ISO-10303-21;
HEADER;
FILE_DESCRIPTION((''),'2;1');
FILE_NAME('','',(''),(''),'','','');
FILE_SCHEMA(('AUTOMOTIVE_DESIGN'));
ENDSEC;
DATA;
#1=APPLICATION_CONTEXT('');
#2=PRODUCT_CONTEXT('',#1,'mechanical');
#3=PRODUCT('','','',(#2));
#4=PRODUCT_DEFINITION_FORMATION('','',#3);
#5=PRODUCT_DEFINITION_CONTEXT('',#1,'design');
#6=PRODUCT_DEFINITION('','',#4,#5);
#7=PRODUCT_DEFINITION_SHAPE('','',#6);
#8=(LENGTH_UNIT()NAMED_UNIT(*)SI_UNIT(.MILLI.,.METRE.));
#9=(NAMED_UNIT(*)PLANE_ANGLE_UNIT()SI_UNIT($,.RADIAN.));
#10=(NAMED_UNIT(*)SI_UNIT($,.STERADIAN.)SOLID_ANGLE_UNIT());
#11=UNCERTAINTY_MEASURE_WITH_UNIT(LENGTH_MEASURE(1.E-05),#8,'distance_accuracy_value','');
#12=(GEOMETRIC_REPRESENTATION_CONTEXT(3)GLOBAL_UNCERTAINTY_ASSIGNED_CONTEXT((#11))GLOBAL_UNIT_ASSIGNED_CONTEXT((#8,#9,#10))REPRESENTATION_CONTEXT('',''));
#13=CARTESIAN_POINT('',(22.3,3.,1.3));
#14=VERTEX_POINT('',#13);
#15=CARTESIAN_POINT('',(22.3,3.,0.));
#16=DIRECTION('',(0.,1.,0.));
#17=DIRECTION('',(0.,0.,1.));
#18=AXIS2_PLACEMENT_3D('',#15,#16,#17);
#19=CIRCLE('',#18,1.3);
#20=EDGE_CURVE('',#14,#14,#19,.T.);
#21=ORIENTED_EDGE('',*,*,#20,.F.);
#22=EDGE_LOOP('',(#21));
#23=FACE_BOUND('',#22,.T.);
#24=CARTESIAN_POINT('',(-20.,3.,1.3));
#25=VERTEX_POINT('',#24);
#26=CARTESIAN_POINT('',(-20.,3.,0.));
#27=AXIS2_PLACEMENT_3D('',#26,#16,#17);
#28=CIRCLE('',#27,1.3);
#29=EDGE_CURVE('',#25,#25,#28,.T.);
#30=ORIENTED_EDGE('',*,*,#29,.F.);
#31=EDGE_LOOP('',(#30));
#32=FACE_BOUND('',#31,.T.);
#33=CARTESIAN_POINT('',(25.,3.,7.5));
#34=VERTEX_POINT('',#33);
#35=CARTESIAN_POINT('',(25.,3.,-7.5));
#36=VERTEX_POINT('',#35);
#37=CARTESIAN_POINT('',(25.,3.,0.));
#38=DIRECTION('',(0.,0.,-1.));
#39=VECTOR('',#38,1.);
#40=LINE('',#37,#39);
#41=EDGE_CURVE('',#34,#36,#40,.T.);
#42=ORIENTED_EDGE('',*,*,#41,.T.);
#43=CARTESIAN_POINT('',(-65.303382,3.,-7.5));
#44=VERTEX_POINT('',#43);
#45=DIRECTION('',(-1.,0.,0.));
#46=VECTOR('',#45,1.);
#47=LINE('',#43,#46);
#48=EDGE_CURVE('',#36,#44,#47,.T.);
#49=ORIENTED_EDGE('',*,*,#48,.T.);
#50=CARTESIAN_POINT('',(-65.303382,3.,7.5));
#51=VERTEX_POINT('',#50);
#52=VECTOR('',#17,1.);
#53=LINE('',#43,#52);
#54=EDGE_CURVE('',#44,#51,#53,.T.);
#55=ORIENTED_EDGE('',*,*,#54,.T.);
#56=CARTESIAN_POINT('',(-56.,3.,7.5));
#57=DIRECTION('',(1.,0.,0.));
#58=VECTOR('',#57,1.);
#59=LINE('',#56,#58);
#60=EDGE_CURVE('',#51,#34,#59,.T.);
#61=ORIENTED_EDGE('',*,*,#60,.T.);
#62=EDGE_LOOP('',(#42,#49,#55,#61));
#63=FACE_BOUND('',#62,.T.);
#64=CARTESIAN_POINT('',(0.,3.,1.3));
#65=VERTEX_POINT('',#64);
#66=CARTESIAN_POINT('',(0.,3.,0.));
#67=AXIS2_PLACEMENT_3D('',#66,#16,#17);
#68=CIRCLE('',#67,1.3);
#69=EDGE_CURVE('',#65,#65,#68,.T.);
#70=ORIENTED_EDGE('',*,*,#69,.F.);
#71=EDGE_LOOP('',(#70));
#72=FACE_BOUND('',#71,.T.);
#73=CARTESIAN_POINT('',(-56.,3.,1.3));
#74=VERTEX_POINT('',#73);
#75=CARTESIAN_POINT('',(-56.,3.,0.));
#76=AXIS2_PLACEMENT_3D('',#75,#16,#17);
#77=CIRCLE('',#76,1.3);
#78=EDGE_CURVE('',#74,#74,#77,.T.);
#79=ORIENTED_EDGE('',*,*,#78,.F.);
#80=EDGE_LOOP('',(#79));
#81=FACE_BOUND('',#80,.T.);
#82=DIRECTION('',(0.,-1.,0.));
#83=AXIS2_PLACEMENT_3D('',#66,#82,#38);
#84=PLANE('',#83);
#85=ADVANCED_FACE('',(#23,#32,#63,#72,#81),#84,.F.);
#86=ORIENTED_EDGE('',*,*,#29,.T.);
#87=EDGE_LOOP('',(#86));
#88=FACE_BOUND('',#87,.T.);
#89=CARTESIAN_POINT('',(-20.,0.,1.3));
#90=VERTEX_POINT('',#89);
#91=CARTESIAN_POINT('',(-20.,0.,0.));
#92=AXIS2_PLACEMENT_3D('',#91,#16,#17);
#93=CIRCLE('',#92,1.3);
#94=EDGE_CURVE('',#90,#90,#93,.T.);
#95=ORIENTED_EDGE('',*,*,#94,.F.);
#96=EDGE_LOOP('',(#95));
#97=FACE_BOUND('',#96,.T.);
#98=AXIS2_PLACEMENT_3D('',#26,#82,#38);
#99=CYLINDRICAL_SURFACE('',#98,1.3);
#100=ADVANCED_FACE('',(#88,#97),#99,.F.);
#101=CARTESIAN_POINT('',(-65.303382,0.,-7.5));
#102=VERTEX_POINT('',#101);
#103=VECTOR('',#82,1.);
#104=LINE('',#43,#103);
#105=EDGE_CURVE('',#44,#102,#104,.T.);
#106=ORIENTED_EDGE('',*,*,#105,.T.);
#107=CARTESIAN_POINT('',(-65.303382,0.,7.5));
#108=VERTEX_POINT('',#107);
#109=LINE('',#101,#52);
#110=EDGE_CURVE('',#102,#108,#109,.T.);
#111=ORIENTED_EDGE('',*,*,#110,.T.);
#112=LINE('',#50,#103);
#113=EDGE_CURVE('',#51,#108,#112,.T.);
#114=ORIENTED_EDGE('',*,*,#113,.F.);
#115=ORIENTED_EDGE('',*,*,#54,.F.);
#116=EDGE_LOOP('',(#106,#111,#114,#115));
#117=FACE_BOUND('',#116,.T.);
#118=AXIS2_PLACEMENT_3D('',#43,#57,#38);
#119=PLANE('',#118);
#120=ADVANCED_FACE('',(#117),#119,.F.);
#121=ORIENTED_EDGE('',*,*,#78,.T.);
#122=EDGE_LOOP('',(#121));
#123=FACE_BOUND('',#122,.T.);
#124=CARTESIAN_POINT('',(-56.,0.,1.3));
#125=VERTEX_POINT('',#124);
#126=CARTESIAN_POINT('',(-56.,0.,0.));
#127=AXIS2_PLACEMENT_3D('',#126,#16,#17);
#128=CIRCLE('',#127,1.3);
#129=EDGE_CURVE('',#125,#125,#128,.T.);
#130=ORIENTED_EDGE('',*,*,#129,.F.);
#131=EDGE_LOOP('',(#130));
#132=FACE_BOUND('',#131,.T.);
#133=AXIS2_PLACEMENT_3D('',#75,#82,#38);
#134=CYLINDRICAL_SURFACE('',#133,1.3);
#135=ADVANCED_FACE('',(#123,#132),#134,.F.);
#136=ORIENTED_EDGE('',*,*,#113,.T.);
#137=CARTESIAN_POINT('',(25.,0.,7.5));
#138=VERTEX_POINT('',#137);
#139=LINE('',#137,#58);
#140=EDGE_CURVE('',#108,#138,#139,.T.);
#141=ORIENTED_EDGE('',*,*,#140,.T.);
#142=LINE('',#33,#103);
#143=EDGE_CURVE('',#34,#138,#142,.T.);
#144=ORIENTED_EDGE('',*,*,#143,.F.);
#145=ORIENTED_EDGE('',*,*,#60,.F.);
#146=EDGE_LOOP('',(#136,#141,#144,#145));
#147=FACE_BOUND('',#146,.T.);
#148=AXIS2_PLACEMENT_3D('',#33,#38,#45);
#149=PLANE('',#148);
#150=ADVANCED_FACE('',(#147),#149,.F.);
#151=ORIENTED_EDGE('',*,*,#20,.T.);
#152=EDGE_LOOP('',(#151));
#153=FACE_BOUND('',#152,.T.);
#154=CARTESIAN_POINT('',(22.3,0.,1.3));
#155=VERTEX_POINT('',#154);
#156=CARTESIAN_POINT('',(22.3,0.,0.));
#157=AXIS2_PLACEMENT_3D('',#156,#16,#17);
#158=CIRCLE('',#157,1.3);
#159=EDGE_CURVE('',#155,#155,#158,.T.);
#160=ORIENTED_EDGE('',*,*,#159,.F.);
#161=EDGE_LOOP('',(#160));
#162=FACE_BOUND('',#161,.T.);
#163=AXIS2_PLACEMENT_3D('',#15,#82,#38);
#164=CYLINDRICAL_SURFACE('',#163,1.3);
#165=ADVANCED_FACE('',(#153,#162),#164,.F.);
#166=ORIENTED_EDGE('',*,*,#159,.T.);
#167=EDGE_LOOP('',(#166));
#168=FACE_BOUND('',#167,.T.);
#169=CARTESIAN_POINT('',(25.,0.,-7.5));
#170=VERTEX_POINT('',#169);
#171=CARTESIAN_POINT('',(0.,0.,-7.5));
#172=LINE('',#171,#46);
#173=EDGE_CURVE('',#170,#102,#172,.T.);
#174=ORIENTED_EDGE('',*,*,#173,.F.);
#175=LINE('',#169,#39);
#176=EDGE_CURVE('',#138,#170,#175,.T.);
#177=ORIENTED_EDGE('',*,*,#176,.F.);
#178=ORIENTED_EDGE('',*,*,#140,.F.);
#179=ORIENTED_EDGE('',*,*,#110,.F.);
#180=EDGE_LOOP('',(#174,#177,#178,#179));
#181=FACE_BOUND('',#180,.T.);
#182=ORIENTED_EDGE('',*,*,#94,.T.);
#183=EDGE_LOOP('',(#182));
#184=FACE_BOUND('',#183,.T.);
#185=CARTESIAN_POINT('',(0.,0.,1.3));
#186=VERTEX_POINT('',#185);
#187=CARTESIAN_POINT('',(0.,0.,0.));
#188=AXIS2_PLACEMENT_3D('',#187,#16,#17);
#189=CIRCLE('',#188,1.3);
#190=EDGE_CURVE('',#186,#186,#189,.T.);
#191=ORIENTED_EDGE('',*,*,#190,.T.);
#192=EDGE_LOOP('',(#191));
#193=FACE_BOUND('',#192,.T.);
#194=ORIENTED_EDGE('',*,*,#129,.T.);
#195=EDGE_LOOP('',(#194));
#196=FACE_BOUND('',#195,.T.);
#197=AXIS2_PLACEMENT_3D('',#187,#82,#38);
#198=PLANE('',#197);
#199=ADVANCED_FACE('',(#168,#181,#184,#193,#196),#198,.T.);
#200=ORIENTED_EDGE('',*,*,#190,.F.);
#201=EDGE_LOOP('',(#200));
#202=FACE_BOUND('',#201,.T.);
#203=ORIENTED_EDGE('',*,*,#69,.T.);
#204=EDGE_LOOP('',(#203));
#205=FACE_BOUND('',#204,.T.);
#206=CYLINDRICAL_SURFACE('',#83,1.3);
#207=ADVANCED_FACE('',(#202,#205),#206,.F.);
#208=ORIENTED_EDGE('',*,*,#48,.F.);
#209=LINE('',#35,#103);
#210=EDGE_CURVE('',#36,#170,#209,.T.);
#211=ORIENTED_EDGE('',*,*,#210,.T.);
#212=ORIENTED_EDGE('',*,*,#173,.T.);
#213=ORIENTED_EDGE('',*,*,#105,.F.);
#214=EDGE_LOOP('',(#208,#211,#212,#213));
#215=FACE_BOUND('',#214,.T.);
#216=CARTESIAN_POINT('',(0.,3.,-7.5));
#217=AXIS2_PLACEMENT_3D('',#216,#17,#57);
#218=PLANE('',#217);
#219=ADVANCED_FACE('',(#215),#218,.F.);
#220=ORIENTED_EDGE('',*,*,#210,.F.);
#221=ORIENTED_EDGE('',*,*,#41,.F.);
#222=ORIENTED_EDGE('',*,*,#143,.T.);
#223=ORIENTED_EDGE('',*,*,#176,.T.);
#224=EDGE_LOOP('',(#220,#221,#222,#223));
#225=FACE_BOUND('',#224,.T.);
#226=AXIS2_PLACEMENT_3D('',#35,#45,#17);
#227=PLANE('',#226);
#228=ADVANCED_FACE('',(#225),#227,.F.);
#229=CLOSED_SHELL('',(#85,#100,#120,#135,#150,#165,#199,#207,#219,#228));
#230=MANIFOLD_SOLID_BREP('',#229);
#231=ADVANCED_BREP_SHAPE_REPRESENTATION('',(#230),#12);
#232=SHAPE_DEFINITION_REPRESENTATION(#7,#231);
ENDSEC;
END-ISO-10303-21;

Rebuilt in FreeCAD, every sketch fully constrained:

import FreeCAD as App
import Part
import Sketcher
from FreeCAD import Vector


def add_polygon(sketch, points):
    """Adds a closed chain of lines whose ends are joined by coincident constraints."""
    first, n = sketch.GeometryCount, len(points)
    for a, b in zip(points, points[1:] + points[:1]):
        sketch.addGeometry(Part.LineSegment(App.Vector(*a, 0), App.Vector(*b, 0)), False)
    for i in range(n):
        sketch.addConstraint(Sketcher.Constraint("Coincident", first + i, 2, first + (i + 1) % n, 1))

doc = App.newDocument("Part")
body = doc.addObject("PartDesign::Body", "Body")

# Sketch on XZ plane
sketch1 = body.newObject("Sketcher::SketchObject", "Sketch")
sketch1.AttachmentSupport = (doc.getObject("XZ_Plane"), [""])
sketch1.MapMode = "FlatFace"
add_polygon(sketch1, [(-65.3, -7.5), (-65.3, 7.5), (25, 7.5), (25, -7.5)])  # lines 0-3
sketch1.addGeometry(Part.Circle(Vector(-56, 0, 0), Vector(0, 0, 1), 1.3), False)  # 4
sketch1.addGeometry(Part.Circle(Vector(-20, 0, 0), Vector(0, 0, 1), 1.3), False)  # 5
sketch1.addGeometry(Part.Circle(Vector(0, 0, 0), Vector(0, 0, 1), 1.3), False)  # 6
sketch1.addGeometry(Part.Circle(Vector(22.3, 0, 0), Vector(0, 0, 1), 1.3), False)  # 7
sketch1.addConstraint([
    Sketcher.Constraint("Vertical", 0),
    Sketcher.Constraint("Horizontal", 1),
    Sketcher.Constraint("Vertical", 2),
    Sketcher.Constraint("Horizontal", 3),
    Sketcher.Constraint("Coincident", 6, 3, -1, 1),
    Sketcher.Constraint("Equal", 4, 5),
    Sketcher.Constraint("Equal", 5, 6),
    Sketcher.Constraint("Equal", 6, 7),
    Sketcher.Constraint("PointOnObject", 4, 3, -1),
    Sketcher.Constraint("PointOnObject", 5, 3, -1),
    Sketcher.Constraint("PointOnObject", 7, 3, -1),
    Sketcher.Constraint("Diameter", 4, 2.6),
    Sketcher.Constraint("DistanceY", 0, 1, 0, 2, 15.0),
    Sketcher.Constraint("DistanceX", 4, 3, -1, 1, 56.0),
    Sketcher.Constraint("DistanceX", 5, 3, -1, 1, 20.0),
    Sketcher.Constraint("DistanceX", -1, 1, 1, 2, 25.0),
    Sketcher.Constraint("DistanceX", -1, 1, 7, 3, 22.3),
    Sketcher.Constraint("DistanceY", -1, 1, 0, 2, 7.5),
    Sketcher.Constraint("DistanceX", 1, 1, 1, 2, 90.303382),
])
pad1 = body.newObject("PartDesign::Pad", "Pad")
pad1.Profile = sketch1
pad1.Length = 3
pad1.Reversed = True

doc.recompute()
